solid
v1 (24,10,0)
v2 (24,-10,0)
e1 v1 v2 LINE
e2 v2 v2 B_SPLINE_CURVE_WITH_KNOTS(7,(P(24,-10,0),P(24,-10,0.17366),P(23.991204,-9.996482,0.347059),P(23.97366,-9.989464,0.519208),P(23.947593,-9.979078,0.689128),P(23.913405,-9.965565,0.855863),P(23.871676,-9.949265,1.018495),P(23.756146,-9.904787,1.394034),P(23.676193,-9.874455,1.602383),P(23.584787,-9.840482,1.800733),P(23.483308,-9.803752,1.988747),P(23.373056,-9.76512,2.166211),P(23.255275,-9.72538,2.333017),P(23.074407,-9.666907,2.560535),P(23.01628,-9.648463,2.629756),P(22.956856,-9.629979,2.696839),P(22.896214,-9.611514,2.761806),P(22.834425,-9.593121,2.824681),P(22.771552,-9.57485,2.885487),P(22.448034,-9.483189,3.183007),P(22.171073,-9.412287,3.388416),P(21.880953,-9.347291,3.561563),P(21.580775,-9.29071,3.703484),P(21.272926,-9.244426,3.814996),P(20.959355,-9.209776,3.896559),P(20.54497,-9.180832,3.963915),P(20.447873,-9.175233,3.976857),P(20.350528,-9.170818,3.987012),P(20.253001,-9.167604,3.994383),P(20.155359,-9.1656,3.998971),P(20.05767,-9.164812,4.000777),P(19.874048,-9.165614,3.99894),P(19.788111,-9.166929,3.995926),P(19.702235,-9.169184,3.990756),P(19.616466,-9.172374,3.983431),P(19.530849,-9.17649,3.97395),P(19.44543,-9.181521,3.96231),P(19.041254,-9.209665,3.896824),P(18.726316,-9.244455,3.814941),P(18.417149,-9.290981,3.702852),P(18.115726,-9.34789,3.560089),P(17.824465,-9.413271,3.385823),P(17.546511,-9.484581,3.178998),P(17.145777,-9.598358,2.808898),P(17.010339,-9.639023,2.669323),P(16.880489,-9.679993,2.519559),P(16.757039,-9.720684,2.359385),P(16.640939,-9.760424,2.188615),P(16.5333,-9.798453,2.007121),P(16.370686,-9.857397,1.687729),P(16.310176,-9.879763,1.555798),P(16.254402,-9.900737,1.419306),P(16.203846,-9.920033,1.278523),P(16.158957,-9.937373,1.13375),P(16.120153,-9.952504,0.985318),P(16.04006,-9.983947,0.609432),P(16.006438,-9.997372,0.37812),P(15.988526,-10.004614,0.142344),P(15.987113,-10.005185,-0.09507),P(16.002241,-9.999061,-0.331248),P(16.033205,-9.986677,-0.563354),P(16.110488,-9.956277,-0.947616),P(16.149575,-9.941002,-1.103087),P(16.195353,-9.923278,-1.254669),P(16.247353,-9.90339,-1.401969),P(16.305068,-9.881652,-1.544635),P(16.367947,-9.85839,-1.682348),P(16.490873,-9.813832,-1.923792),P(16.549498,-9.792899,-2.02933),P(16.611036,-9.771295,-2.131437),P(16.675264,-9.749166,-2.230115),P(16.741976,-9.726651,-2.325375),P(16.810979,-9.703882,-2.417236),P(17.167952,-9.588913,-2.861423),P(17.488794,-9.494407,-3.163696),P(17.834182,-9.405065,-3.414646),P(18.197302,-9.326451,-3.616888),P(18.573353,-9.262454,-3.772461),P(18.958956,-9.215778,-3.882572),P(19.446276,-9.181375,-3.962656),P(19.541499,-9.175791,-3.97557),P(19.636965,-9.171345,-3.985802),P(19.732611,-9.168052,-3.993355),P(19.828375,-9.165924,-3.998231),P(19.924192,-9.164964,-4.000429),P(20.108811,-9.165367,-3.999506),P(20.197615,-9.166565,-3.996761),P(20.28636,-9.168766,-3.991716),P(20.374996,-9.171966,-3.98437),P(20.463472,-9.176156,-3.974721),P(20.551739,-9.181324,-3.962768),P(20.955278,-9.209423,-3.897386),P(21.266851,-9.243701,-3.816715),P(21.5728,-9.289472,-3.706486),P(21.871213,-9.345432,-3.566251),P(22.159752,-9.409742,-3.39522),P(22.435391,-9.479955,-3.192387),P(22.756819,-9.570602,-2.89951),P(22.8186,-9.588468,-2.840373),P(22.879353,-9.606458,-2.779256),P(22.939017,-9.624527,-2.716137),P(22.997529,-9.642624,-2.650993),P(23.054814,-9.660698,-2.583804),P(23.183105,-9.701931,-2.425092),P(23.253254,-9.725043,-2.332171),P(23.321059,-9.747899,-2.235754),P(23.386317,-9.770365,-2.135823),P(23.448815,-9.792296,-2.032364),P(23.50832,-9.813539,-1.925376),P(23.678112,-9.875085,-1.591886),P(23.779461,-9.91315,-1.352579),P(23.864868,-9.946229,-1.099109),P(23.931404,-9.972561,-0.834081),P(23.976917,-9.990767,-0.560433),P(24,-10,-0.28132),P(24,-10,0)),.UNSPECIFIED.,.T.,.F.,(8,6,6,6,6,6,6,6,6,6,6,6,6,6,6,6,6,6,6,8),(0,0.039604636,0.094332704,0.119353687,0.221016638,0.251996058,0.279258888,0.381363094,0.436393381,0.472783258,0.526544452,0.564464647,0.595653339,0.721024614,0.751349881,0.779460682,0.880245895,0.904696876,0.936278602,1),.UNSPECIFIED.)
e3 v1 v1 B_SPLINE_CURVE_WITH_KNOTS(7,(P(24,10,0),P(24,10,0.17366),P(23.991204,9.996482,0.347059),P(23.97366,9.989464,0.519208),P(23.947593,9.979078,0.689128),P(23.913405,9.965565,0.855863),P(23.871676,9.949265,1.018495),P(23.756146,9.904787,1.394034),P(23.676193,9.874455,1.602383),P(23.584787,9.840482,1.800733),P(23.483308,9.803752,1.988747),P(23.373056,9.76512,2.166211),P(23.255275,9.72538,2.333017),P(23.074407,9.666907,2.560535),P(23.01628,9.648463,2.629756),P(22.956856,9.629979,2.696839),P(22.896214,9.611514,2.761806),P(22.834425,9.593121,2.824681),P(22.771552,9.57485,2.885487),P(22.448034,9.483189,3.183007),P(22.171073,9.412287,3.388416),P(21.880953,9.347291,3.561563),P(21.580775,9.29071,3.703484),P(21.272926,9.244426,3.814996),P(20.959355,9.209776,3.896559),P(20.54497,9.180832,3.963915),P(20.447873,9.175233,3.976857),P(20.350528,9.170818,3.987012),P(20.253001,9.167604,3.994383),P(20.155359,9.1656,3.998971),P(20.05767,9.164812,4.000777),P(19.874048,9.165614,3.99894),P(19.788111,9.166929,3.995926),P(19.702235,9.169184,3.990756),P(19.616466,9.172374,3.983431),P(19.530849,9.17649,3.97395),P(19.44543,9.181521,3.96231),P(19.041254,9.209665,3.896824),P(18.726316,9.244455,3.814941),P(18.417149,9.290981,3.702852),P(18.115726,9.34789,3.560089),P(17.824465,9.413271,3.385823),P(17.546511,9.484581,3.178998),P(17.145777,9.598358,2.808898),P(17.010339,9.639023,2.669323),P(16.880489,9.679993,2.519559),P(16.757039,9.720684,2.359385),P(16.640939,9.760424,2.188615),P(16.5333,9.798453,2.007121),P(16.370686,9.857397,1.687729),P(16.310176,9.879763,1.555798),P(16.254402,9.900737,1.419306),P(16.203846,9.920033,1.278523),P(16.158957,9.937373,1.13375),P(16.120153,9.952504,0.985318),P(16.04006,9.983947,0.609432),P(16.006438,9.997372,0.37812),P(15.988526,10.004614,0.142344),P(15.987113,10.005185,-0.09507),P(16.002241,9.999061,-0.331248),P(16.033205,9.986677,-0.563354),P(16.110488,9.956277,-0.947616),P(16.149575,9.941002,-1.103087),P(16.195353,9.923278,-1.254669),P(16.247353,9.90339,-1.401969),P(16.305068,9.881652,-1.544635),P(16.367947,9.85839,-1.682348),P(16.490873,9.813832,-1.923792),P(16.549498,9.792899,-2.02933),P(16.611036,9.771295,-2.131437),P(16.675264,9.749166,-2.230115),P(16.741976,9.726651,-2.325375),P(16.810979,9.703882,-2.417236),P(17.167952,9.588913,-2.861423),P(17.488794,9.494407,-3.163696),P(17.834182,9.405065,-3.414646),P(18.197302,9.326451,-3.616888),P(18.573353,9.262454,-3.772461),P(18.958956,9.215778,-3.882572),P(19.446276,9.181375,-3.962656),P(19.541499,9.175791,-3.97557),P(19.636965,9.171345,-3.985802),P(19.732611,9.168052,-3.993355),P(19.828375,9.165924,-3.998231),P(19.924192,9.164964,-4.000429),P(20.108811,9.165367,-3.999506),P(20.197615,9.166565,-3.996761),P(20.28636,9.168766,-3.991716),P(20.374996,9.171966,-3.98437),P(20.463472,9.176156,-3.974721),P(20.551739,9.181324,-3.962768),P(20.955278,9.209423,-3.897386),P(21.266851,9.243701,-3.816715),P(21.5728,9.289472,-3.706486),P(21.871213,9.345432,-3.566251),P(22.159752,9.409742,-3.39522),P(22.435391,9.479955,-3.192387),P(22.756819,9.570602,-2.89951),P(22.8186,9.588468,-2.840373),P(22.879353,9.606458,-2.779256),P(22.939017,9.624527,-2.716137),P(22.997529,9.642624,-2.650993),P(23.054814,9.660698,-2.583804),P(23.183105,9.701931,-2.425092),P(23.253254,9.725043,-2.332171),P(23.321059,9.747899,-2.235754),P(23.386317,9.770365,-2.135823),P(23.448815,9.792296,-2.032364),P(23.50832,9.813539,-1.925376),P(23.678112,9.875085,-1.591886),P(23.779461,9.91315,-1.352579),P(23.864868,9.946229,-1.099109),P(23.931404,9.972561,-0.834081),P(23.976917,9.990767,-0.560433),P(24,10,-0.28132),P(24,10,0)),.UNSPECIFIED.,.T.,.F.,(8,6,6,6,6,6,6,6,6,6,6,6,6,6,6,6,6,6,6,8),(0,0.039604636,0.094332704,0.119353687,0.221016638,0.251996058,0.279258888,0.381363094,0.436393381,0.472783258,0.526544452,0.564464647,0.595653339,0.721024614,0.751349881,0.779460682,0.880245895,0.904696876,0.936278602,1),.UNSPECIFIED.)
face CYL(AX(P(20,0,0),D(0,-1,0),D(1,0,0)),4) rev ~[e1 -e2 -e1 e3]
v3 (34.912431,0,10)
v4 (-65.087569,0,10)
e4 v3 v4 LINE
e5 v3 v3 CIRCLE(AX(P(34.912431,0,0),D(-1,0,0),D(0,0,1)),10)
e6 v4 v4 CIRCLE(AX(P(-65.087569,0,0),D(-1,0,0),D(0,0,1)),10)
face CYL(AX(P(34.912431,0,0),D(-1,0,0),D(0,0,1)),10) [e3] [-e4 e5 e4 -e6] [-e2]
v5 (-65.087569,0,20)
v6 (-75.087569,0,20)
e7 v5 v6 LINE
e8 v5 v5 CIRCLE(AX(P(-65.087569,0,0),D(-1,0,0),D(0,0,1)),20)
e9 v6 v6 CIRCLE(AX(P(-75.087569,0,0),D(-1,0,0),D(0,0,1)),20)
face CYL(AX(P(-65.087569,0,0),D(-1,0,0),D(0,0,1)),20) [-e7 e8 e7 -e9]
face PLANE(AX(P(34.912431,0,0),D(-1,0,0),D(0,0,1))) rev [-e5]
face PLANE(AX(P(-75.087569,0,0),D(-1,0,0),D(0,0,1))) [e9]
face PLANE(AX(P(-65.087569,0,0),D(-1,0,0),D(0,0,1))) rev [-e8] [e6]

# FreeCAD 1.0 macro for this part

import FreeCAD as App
import Part
import Sketcher
from FreeCAD import Vector
Q = App.Units.Quantity

doc = App.newDocument("Part")
params = doc.addObject("Spreadsheet::Sheet", "Params")
for row, (alias, value) in enumerate([
    ("sketch1_width", "110 mm"),
    ("sketch1_width2", "100 mm"),
    ("revolution_angle", "360 deg"),
    ("sketch2_diameter", "8 mm"),
    ("pocket1_length", "100 mm"),
], start=1):
    params.set(f"A{row}", alias)
    params.set(f"B{row}", "=" + value)
    params.setAlias(f"B{row}", alias)

body = doc.addObject("PartDesign::Body", "Body")

sketch1 = body.newObject("Sketcher::SketchObject", "Sketch")
sketch1.AttachmentSupport = (doc.getObject("XZ_Plane"), [""])
sketch1.MapMode = "FlatFace"
sketch1.addGeometry(Part.LineSegment(Vector(-75, 20, 0), Vector(-75, 0, 0)), False)
sketch1.addGeometry(Part.LineSegment(Vector(-75, 0, 0), Vector(35, 0, 0)), False)
sketch1.addGeometry(Part.LineSegment(Vector(35, 0, 0), Vector(35, 10, 0)), False)
sketch1.addGeometry(Part.LineSegment(Vector(35, 10, 0), Vector(-65, 10, 0)), False)
sketch1.addGeometry(Part.LineSegment(Vector(-65, 10, 0), Vector(-65, 20, 0)), False)
sketch1.addGeometry(Part.LineSegment(Vector(-65, 20, 0), Vector(-75, 20, 0)), False)
sketch1.addConstraint(Sketcher.Constraint("Coincident", 0, 2, 1, 1))
sketch1.addConstraint(Sketcher.Constraint("Coincident", 1, 2, 2, 1))
sketch1.addConstraint(Sketcher.Constraint("Coincident", 2, 2, 3, 1))
sketch1.addConstraint(Sketcher.Constraint("Coincident", 3, 2, 4, 1))
sketch1.addConstraint(Sketcher.Constraint("Coincident", 4, 2, 5, 1))
sketch1.addConstraint(Sketcher.Constraint("Coincident", 5, 2, 0, 1))
sketch1.addConstraint(Sketcher.Constraint("Vertical", 0))
sketch1.addConstraint(Sketcher.Constraint("Horizontal", 1))
sketch1.addConstraint(Sketcher.Constraint("Vertical", 2))
sketch1.addConstraint(Sketcher.Constraint("Horizontal", 3))
sketch1.addConstraint(Sketcher.Constraint("Vertical", 4))
sketch1.addConstraint(Sketcher.Constraint("Horizontal", 5))
sketch1.addConstraint(Sketcher.Constraint("PointOnObject", 0, 2, -1))
sketch1.addConstraint(Sketcher.Constraint("Equal", 5, 2))
sketch1.addConstraint(Sketcher.Constraint("Equal", 2, 4))
sketch1.addConstraint(Sketcher.Constraint("DistanceX", 1, 1, 1, 2, Q("110 mm")))
sketch1.addConstraint(Sketcher.Constraint("DistanceX", 3, 2, 3, 1, Q("100 mm")))
sketch1.addConstraint(Sketcher.Constraint("DistanceX", 0, 2, -1, 1, Q("75.087569 mm")))
sketch1.setExpression("Constraints[15]", "Params.sketch1_width")
sketch1.setExpression("Constraints[16]", "Params.sketch1_width2")
revolution = body.newObject("PartDesign::Revolution", "Revolution")
revolution.Profile = sketch1
revolution.ReferenceAxis = (sketch1, ["H_Axis"])
revolution.setExpression("Angle", "Params.revolution_angle")

sketch2 = body.newObject("Sketcher::SketchObject", "Sketch001")
sketch2.AttachmentSupport = (doc.getObject("XZ_Plane"), [""])
sketch2.MapMode = "FlatFace"
sketch2.addGeometry(Part.Circle(Vector(20, 0, 0), Vector(0, 0, 1), 4), False)
sketch2.addConstraint(Sketcher.Constraint("PointOnObject", 0, 3, -1))
sketch2.addConstraint(Sketcher.Constraint("Diameter", 0, Q("8 mm")))
sketch2.addConstraint(Sketcher.Constraint("DistanceX", -1, 1, 0, 3, Q("20 mm")))
sketch2.setExpression("Constraints[1]", "Params.sketch2_diameter")
pocket1 = body.newObject("PartDesign::Pocket", "Pocket")
pocket1.Profile = sketch2
pocket1.setExpression("Length", "Params.pocket1_length")
pocket1.Midplane = True

doc.recompute()
